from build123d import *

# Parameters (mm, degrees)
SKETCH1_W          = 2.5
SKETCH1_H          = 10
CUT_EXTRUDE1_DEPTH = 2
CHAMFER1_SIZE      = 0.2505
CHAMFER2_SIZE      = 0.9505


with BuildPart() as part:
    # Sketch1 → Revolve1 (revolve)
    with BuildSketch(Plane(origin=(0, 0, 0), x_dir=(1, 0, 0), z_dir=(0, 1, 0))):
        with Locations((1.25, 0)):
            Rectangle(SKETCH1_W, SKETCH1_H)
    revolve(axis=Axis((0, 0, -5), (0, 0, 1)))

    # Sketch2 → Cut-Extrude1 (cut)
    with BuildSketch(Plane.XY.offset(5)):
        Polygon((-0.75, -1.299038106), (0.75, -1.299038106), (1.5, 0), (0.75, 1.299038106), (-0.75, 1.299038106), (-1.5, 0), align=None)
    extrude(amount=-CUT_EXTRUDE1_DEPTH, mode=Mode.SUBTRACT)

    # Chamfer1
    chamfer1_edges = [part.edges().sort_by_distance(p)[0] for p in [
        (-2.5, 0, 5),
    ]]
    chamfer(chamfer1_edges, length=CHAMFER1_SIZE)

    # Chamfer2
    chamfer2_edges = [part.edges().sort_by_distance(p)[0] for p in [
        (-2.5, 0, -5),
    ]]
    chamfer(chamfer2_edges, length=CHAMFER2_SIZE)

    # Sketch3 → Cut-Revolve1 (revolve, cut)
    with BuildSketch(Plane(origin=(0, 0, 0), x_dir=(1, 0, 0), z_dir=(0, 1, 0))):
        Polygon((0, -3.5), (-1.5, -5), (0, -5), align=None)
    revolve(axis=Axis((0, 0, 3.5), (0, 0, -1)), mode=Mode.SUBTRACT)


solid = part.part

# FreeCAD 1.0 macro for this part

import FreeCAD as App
import Part
import Sketcher
from FreeCAD import Vector
Q = App.Units.Quantity


def edges_at(feature, points):
    """Names of the edges that pass closest to the given points."""
    edges = feature.Shape.Edges
    near = lambda p: min(range(len(edges)), key=lambda i: edges[i].distToShape(Part.Vertex(*p))[0])
    return sorted({f"Edge{near(p) + 1}" for p in points})


def add_polygon(sketch, points):
    """Adds a closed chain of lines whose ends are joined by coincident constraints."""
    first, n = sketch.GeometryCount, len(points)
    for a, b in zip(points, points[1:] + points[:1]):
        sketch.addGeometry(Part.LineSegment(App.Vector(*a, 0), App.Vector(*b, 0)), False)
    for i in range(n):
        sketch.addConstraint(Sketcher.Constraint("Coincident", first + i, 2, first + (i + 1) % n, 1))

doc = App.newDocument("Part")
body = doc.addObject("PartDesign::Body", "Body")

sketch1 = body.newObject("Sketcher::SketchObject", "Sketch")
sketch1.AttachmentSupport = (doc.getObject("XZ_Plane"), [""])
sketch1.MapMode = "FlatFace"
add_polygon(sketch1, [(0, -5), (0, 5), (2.5, 5), (2.5, -5)])
sketch1.addConstraint(Sketcher.Constraint("Vertical", 0))
sketch1.addConstraint(Sketcher.Constraint("Horizontal", 1))
sketch1.addConstraint(Sketcher.Constraint("Vertical", 2))
sketch1.addConstraint(Sketcher.Constraint("Horizontal", 3))
sketch1.addConstraint(Sketcher.Constraint("Symmetric", 0, 2, 3, 2, -1, 1))
sketch1.addConstraint(Sketcher.Constraint("DistanceY", 0, 1, 0, 2, 10.0))
sketch1.addConstraint(Sketcher.Constraint("DistanceX", 1, 1, 1, 2, 2.5))
revolution = body.newObject("PartDesign::Revolution", "Revolution")
revolution.Profile = sketch1
revolution.ReferenceAxis = (sketch1, ["V_Axis"])
revolution.Angle = 360

sketch2 = body.newObject("Sketcher::SketchObject", "Sketch001")
sketch2.AttachmentSupport = (doc.getObject("XY_Plane"), [""])
sketch2.MapMode = "FlatFace"
sketch2.AttachmentOffset = App.Placement(Vector(0, 0, 5), App.Rotation())
add_polygon(sketch2, [(-0.75, -1.299038), (0.75, -1.299038), (1.5, 0), (0.75, 1.299038), (-0.75, 1.299038), (-1.5, 0)])
sketch2.addConstraint(Sketcher.Constraint("Horizontal", 0))
sketch2.addConstraint(Sketcher.Constraint("Horizontal", 3))
sketch2.addConstraint(Sketcher.Constraint("Symmetric", 0, 2, 3, 2, -1, 1))
sketch2.addConstraint(Sketcher.Constraint("Symmetric", 1, 2, 4, 2, -1, 1))
sketch2.addConstraint(Sketcher.Constraint("PointOnObject", 1, 2, -1))
sketch2.addConstraint(Sketcher.Constraint("Parallel", 2, 5))
sketch2.addConstraint(Sketcher.Constraint("Vertical", 0, 2, 2, 2))
sketch2.addConstraint(Sketcher.Constraint("Angle", 1, Q("60 deg")))
sketch2.addConstraint(Sketcher.Constraint("DistanceX", 0, 1, 0, 2, 1.5))
sketch2.addConstraint(Sketcher.Constraint("DistanceX", 4, 2, 1, 2, 3.0))
pocket1 = body.newObject("PartDesign::Pocket", "Pocket")
pocket1.Profile = sketch2
pocket1.Length = 2
doc.recompute()

chamfer = body.newObject("PartDesign::Chamfer", "Chamfer")
chamfer.Base = (pocket1, edges_at(pocket1, [(-2.5, 0, 5)]))
chamfer.Size = 0.2505
doc.recompute()

chamfer2 = body.newObject("PartDesign::Chamfer", "Chamfer001")
chamfer2.Base = (chamfer, edges_at(chamfer, [(-2.5, 0, -5)]))
chamfer2.Size = 0.9505

sketch3 = body.newObject("Sketcher::SketchObject", "Sketch002")
sketch3.AttachmentSupport = (doc.getObject("XZ_Plane"), [""])
sketch3.MapMode = "FlatFace"
add_polygon(sketch3, [(0, 3.5), (-1.5, 5), (0, 5)])
sketch3.addConstraint(Sketcher.Constraint("Horizontal", 1))
sketch3.addConstraint(Sketcher.Constraint("Vertical", 2))
sketch3.addConstraint(Sketcher.Constraint("PointOnObject", 1, 2, -2))
sketch3.addConstraint(Sketcher.Constraint("Equal", 1, 2))
sketch3.addConstraint(Sketcher.Constraint("DistanceX", 1, 1, 1, 2, 1.5))
sketch3.addConstraint(Sketcher.Constraint("DistanceY", -1, 1, 0, 2, 5.0))
groove = body.newObject("PartDesign::Groove", "Groove")
groove.Profile = sketch3
groove.ReferenceAxis = (sketch3, ["V_Axis"])
groove.Angle = 360

doc.recompute()
